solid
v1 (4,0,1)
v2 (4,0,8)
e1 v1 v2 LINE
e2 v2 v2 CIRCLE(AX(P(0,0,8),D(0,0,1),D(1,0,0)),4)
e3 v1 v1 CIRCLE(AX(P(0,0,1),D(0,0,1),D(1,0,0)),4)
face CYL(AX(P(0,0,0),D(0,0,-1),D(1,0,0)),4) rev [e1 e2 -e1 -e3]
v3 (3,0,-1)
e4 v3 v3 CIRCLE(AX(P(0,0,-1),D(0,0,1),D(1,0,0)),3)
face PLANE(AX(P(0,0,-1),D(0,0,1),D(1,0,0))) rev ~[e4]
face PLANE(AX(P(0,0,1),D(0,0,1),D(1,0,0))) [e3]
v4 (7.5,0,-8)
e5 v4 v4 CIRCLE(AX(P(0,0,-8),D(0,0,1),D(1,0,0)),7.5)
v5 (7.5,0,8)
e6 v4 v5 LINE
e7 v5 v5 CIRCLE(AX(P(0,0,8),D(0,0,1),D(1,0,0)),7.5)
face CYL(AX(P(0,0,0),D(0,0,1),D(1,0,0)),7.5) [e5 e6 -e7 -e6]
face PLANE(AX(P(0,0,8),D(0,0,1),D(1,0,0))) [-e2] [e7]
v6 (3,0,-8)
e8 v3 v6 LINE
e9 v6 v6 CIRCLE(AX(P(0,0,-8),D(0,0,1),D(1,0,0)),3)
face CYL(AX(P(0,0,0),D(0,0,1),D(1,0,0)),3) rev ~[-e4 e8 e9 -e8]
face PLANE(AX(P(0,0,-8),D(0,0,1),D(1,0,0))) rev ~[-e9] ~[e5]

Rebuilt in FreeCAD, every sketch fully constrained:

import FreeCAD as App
import Part
import Sketcher

V = App.Vector
Q = App.Units.Quantity

doc = App.newDocument("Part")
body = doc.addObject("PartDesign::Body", "Body")

# Sketch on XY plane
sketch1 = body.newObject("Sketcher::SketchObject", "Sketch")
sketch1.AttachmentSupport = (doc.getObject("XY_Plane"), [""])
sketch1.MapMode = "FlatFace"
sketch1.addGeometry([
    Part.Circle(V(0, 0, 0), V(0, 0, 1), 7.5),
    Part.Circle(V(0, 0, 0), V(0, 0, 1), 4),
], False)
sketch1.addConstraint([
    Sketcher.Constraint("Coincident", 0, 3, -1, 1),
    Sketcher.Constraint("Coincident", 1, 3, -1, 1),
    Sketcher.Constraint("Diameter", 0, Q("15 mm")),
    Sketcher.Constraint("Diameter", 1, Q("8 mm")),
])
pad1 = body.newObject("PartDesign::Pad", "Pad")
pad1.Profile = sketch1
pad1.Length = 8

# Sketch on XY plane
sketch2 = body.newObject("Sketcher::SketchObject", "Sketch001")
sketch2.AttachmentSupport = (doc.getObject("XY_Plane"), [""])
sketch2.MapMode = "FlatFace"
sketch2.addGeometry([
    Part.Circle(V(0, 0, 0), V(0, 0, 1), 7.5),
    Part.Circle(V(0, 0, 0), V(0, 0, 1), 3),
], False)
sketch2.addConstraint([
    Sketcher.Constraint("Coincident", 0, 3, -1, 1),
    Sketcher.Constraint("Coincident", 1, 3, -1, 1),
    Sketcher.Constraint("Diameter", 0, Q("15 mm")),
    Sketcher.Constraint("Diameter", 1, Q("6 mm")),
])
pad2 = body.newObject("PartDesign::Pad", "Pad001")
pad2.Profile = sketch2
pad2.Length = 8
pad2.Reversed = True

# Sketch on XY plane
sketch3 = body.newObject("Sketcher::SketchObject", "Sketch002")
sketch3.AttachmentSupport = (doc.getObject("XY_Plane"), [""])
sketch3.MapMode = "FlatFace"
sketch3.addGeometry(Part.Circle(V(0, 0, 0), V(0, 0, 1), 4), False)
sketch3.addConstraint([
    Sketcher.Constraint("Coincident", 0, 3, -1, 1),
    Sketcher.Constraint("Diameter", 0, Q("8 mm")),
])
pad3 = body.newObject("PartDesign::Pad", "Pad002")
pad3.Profile = sketch3
pad3.Type = "TwoLengths"
pad3.Length = 1
pad3.Length2 = 1

doc.recompute()
